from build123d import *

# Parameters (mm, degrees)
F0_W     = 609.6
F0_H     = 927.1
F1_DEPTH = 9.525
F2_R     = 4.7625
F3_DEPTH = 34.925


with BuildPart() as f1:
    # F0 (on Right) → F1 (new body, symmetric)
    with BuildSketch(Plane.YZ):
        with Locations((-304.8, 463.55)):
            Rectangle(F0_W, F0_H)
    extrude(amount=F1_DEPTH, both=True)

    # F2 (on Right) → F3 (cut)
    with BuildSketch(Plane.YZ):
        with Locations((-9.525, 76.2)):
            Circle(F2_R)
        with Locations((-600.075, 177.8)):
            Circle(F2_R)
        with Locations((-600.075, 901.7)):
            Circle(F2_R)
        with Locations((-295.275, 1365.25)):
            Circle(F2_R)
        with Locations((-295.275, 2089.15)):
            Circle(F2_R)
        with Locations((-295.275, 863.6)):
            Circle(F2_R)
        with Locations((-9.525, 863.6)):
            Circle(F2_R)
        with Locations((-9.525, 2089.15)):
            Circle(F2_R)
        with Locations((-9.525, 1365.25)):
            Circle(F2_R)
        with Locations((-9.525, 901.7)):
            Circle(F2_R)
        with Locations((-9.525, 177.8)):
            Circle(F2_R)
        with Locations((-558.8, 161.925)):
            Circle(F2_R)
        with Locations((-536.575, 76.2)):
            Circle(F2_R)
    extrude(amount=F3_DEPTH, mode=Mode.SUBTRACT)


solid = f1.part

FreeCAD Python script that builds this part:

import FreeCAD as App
import Part
import Sketcher

V = App.Vector
Q = App.Units.Quantity

doc = App.newDocument("Part")
body = doc.addObject("PartDesign::Body", "Body")

# Sketch on YZ plane
sketch1 = body.newObject("Sketcher::SketchObject", "Sketch")
sketch1.AttachmentSupport = (doc.getObject("YZ_Plane"), [""])
sketch1.MapMode = "FlatFace"
sketch1.addGeometry([
    Part.LineSegment(V(-610, 927, 0), V(-610, 0, 0)),
    Part.LineSegment(V(-610, 0, 0), V(0, 0, 0)),
    Part.LineSegment(V(0, 0, 0), V(0, 927, 0)),
    Part.LineSegment(V(0, 927, 0), V(-610, 927, 0)),
], False)
sketch1.addConstraint([
    Sketcher.Constraint("Coincident", 0, 2, 1, 1),
    Sketcher.Constraint("Coincident", 1, 2, 2, 1),
    Sketcher.Constraint("Coincident", 2, 2, 3, 1),
    Sketcher.Constraint("Coincident", 3, 2, 0, 1),
    Sketcher.Constraint("Vertical", 0),
    Sketcher.Constraint("Horizontal", 1),
    Sketcher.Constraint("Vertical", 2),
    Sketcher.Constraint("Horizontal", 3),
    Sketcher.Constraint("Coincident", 1, 2, -1, 1),
    Sketcher.Constraint("DistanceX", 1, 1, 1, 2, Q("24 in")),
    Sketcher.Constraint("DistanceY", 0, 2, 0, 1, Q("36.5 in")),
])
pad1 = body.newObject("PartDesign::Pad", "Pad")
pad1.Profile = sketch1
pad1.Length = Q("0.75 in")
pad1.Midplane = True

# Sketch on YZ plane
sketch2 = body.newObject("Sketcher::SketchObject", "Sketch001")
sketch2.AttachmentSupport = (doc.getObject("YZ_Plane"), [""])
sketch2.MapMode = "FlatFace"
sketch2.addGeometry([
    Part.Circle(V(-9.5, 76.2, 0), V(0, 0, 1), 4.8),  # 0
    Part.Circle(V(-600.1, 177.8, 0), V(0, 0, 1), 4.8),  # 1
    Part.Circle(V(-600.1, 901.7, 0), V(0, 0, 1), 4.8),  # 2
    Part.Circle(V(-295.3, 1365.2, 0), V(0, 0, 1), 4.8),  # 3
    Part.Circle(V(-295.3, 2089.2, 0), V(0, 0, 1), 4.8),  # 4
    Part.Circle(V(-295.3, 863.6, 0), V(0, 0, 1), 4.8),  # 5
    Part.Circle(V(-9.5, 863.6, 0), V(0, 0, 1), 4.8),  # 6
    Part.Circle(V(-9.5, 2089.2, 0), V(0, 0, 1), 4.8),  # 7
    Part.Circle(V(-9.5, 1365.2, 0), V(0, 0, 1), 4.8),  # 8
    Part.Circle(V(-9.5, 901.7, 0), V(0, 0, 1), 4.8),  # 9
    Part.Circle(V(-9.5, 177.8, 0), V(0, 0, 1), 4.8),  # 10
    Part.Circle(V(-558.8, 161.9, 0), V(0, 0, 1), 4.8),  # 11
    Part.Circle(V(-536.6, 76.2, 0), V(0, 0, 1), 4.8),  # 12
], False)
sketch2.addConstraint([
    Sketcher.Constraint("Equal", 0, 1),
    Sketcher.Constraint("Equal", 1, 2),
    Sketcher.Constraint("Equal", 2, 3),
    Sketcher.Constraint("Equal", 3, 4),
    Sketcher.Constraint("Equal", 4, 5),
    Sketcher.Constraint("Equal", 5, 6),
    Sketcher.Constraint("Equal", 6, 7),
    Sketcher.Constraint("Equal", 7, 8),
    Sketcher.Constraint("Equal", 8, 9),
    Sketcher.Constraint("Equal", 9, 10),
    Sketcher.Constraint("Equal", 10, 11),
    Sketcher.Constraint("Equal", 11, 12),
    Sketcher.Constraint("Horizontal", 5, 3, 6, 3),
    Sketcher.Constraint("Horizontal", 4, 3, 7, 3),
    Sketcher.Constraint("Horizontal", 3, 3, 8, 3),
    Sketcher.Constraint("Horizontal", 2, 3, 9, 3),
    Sketcher.Constraint("Horizontal", 1, 3, 10, 3),
    Sketcher.Constraint("Horizontal", 0, 3, 12, 3),
    Sketcher.Constraint("Vertical", 1, 3, 2, 3),
    Sketcher.Constraint("Vertical", 3, 3, 4, 3),
    Sketcher.Constraint("Vertical", 4, 3, 5, 3),
    Sketcher.Constraint("Vertical", 0, 3, 6, 3),
    Sketcher.Constraint("Vertical", 6, 3, 7, 3),
    Sketcher.Constraint("Vertical", 7, 3, 8, 3),
    Sketcher.Constraint("Vertical", 8, 3, 9, 3),
    Sketcher.Constraint("Vertical", 9, 3, 10, 3),
    Sketcher.Constraint("Diameter", 0, Q("0.375 in")),
    Sketcher.Constraint("DistanceY", -1, 1, 0, 3, Q("3 in")),
    Sketcher.Constraint("DistanceY", -1, 1, 1, 3, Q("7 in")),
    Sketcher.Constraint("DistanceY", -1, 1, 5, 3, Q("34 in")),
    Sketcher.Constraint("DistanceX", 11, 3, -1, 1, Q("22 in")),
    Sketcher.Constraint("DistanceX", 2, 3, 3, 3, Q("12 in")),
    Sketcher.Constraint("DistanceY", -1, 1, 2, 3, Q("35.5 in")),
    Sketcher.Constraint("DistanceY", 3, 3, 4, 3, Q("28.5 in")),
    Sketcher.Constraint("DistanceX", 1, 3, 12, 3, Q("2.5 in")),
    Sketcher.Constraint("DistanceY", -1, 1, 3, 3, Q("53.75 in")),
    Sketcher.Constraint("DistanceX", 1, 3, 0, 3, Q("23.25 in")),
    Sketcher.Constraint("DistanceX", 0, 3, -1, 1, Q("0.375 in")),
    Sketcher.Constraint("DistanceY", -1, 1, 11, 3, Q("6.375 in")),
])
pocket1 = body.newObject("PartDesign::Pocket", "Pocket")
pocket1.Profile = sketch2
pocket1.Length = Q("1.375 in")
pocket1.Reversed = True

doc.recompute()
